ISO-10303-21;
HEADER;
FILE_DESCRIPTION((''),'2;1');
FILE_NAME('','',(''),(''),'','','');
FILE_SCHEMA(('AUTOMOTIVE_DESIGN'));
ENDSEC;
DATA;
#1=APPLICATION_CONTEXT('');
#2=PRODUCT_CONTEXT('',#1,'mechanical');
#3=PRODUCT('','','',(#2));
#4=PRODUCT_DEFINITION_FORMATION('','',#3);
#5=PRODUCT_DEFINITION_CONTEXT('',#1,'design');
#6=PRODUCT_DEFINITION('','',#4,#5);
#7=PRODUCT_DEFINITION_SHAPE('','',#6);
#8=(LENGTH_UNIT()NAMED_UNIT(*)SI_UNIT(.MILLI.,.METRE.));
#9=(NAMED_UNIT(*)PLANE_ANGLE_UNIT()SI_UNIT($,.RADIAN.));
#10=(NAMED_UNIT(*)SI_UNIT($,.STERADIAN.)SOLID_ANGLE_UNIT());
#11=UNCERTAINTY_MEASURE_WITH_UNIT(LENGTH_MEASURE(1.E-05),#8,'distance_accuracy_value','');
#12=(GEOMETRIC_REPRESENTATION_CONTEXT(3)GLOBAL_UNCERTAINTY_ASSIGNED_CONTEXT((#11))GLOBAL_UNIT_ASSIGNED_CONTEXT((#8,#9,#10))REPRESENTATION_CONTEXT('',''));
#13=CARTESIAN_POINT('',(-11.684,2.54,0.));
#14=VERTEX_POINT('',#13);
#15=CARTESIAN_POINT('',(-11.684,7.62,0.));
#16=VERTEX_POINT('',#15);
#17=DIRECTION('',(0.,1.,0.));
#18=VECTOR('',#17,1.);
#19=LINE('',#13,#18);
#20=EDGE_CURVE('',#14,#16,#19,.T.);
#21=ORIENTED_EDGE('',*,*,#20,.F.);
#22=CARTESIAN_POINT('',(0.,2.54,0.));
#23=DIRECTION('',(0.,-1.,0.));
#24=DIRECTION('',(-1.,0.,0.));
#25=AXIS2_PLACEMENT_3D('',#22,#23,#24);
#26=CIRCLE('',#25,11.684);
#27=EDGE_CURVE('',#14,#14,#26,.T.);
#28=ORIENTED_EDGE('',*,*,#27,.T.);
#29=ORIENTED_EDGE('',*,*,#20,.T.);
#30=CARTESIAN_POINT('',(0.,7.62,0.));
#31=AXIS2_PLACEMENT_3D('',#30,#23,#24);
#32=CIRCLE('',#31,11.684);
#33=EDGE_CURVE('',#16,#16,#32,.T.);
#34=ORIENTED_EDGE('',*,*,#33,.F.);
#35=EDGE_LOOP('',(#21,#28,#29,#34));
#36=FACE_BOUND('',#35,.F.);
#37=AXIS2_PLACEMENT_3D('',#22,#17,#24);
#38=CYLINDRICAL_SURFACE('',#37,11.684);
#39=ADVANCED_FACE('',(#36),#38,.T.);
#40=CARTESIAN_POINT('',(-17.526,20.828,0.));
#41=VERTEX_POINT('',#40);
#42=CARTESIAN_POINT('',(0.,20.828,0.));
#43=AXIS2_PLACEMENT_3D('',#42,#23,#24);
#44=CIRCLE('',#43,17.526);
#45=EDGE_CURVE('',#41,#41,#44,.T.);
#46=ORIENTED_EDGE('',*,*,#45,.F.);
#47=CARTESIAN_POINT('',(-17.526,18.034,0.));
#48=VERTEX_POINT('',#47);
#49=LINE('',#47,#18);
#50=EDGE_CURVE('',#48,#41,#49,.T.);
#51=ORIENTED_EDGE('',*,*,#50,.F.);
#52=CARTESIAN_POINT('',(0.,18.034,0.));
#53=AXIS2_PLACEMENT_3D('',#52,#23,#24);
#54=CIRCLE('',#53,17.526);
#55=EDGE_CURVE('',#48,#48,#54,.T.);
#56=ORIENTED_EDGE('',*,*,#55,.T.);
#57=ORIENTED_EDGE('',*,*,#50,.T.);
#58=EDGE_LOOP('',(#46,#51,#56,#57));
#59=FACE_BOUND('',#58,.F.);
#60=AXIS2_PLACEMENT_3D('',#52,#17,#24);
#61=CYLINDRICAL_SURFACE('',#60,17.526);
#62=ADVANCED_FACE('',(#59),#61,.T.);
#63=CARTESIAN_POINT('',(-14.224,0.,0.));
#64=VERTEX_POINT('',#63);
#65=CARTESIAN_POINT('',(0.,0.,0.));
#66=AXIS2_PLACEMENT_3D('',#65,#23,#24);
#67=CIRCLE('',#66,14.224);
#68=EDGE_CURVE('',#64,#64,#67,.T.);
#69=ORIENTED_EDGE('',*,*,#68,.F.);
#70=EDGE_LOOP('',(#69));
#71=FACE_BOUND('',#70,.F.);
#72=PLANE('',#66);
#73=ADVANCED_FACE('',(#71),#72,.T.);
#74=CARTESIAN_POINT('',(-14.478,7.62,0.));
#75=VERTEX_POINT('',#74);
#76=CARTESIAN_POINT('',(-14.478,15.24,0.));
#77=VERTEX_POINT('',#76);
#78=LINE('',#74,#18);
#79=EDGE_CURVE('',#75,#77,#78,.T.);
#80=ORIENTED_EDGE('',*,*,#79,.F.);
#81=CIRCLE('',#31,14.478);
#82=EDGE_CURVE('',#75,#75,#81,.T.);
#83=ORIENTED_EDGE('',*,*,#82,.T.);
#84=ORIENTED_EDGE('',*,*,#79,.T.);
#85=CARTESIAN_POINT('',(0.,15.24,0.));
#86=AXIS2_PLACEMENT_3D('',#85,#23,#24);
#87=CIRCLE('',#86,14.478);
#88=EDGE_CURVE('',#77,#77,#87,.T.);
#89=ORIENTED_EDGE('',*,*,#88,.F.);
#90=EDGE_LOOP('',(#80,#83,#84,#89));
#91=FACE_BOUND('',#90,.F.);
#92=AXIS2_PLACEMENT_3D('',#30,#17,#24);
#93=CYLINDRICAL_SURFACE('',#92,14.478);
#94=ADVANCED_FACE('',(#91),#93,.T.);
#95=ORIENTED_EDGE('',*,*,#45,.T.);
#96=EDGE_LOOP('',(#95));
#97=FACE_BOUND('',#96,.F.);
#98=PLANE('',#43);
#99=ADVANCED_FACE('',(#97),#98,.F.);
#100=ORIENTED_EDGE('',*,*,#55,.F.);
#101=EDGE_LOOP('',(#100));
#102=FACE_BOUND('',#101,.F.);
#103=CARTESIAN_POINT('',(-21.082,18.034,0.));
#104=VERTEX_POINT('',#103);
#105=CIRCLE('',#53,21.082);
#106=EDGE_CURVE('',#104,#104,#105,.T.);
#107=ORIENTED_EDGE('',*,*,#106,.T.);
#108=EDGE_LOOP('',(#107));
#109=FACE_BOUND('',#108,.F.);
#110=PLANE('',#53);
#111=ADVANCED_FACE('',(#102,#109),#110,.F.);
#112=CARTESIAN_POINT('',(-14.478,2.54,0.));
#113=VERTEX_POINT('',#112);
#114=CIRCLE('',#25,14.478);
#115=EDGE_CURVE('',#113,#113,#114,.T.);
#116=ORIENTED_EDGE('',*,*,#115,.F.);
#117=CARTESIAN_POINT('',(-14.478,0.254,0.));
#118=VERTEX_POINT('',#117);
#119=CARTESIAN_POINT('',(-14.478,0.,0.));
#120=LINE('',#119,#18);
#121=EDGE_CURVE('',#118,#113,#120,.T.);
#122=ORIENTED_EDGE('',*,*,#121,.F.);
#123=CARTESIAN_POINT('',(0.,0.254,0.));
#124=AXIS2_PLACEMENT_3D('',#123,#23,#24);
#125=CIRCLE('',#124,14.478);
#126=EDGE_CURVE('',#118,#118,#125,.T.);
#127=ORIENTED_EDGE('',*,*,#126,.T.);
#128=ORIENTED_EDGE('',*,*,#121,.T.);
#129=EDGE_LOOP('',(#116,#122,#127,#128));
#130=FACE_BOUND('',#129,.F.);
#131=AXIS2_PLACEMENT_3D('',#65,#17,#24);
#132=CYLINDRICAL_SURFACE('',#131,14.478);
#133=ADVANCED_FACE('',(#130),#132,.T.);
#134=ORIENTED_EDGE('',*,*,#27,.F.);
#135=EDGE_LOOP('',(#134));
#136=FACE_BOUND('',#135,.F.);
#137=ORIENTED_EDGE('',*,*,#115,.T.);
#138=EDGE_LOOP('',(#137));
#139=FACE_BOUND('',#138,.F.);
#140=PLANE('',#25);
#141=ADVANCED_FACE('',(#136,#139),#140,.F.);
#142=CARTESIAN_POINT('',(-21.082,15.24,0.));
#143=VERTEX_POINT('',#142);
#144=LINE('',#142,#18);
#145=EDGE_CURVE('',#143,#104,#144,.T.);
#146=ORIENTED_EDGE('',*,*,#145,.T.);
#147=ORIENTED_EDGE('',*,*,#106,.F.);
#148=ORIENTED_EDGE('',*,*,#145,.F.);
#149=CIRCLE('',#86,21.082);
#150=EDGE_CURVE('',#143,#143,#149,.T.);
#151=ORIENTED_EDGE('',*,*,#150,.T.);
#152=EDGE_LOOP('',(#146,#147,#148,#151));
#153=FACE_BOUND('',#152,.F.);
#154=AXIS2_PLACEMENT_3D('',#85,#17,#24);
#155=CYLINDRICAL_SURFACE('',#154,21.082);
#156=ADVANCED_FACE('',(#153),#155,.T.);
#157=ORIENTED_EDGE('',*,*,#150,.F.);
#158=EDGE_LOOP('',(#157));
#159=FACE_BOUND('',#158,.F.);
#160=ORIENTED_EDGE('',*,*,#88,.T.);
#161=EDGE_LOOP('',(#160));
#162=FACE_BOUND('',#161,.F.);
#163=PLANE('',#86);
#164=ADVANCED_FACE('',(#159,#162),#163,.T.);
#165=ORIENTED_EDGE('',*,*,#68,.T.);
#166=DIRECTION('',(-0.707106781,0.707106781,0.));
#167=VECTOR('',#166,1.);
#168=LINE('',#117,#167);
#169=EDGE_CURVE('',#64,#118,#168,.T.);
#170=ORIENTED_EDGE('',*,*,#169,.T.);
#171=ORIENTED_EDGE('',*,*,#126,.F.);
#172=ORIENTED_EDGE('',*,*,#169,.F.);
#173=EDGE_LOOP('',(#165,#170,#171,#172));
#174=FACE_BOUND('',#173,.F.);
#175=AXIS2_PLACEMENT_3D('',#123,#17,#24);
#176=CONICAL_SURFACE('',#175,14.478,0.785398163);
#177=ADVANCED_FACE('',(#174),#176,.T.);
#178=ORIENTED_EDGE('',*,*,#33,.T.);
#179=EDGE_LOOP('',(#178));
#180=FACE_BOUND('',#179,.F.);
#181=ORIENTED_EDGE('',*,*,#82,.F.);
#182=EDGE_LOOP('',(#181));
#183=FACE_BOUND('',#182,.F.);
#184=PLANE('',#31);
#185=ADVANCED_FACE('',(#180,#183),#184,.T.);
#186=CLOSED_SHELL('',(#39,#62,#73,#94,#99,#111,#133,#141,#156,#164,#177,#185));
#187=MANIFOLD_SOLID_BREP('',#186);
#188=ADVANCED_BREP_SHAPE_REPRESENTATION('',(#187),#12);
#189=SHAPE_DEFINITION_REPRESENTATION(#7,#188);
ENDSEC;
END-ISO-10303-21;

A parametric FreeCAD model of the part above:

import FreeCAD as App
import Part
import Sketcher
Q = App.Units.Quantity


def edges_at(feature, points):
    """Names of the edges that pass closest to the given points."""
    edges = feature.Shape.Edges
    near = lambda p: min(range(len(edges)), key=lambda i: edges[i].distToShape(Part.Vertex(*p))[0])
    return sorted({f"Edge{near(p) + 1}" for p in points})


def add_polygon(sketch, points):
    """Adds a closed chain of lines whose ends are joined by coincident constraints."""
    first, n = sketch.GeometryCount, len(points)
    for a, b in zip(points, points[1:] + points[:1]):
        sketch.addGeometry(Part.LineSegment(App.Vector(*a, 0), App.Vector(*b, 0)), False)
    for i in range(n):
        sketch.addConstraint(Sketcher.Constraint("Coincident", first + i, 2, first + (i + 1) % n, 1))

doc = App.newDocument("Part")
body = doc.addObject("PartDesign::Body", "Body")

sketch1 = body.newObject("Sketcher::SketchObject", "Sketch")
sketch1.AttachmentSupport = (doc.getObject("XY_Plane"), [""])
sketch1.MapMode = "FlatFace"
add_polygon(sketch1, [(-14.478, 0), (0, 0), (0, 20.828), (-17.526, 20.828), (-17.526, 18.034), (-21.082, 18.034), (-21.082, 15.24), (-14.478, 15.24), (-14.478, 7.62), (-11.684, 7.62), (-11.684, 2.54), (-14.478, 2.54)])
sketch1.addConstraint([
    Sketcher.Constraint("Horizontal", 0),
    Sketcher.Constraint("Vertical", 1),
    Sketcher.Constraint("Horizontal", 2),
    Sketcher.Constraint("Vertical", 3),
    Sketcher.Constraint("Horizontal", 4),
    Sketcher.Constraint("Vertical", 5),
    Sketcher.Constraint("Horizontal", 6),
    Sketcher.Constraint("Vertical", 7),
    Sketcher.Constraint("Horizontal", 8),
    Sketcher.Constraint("Vertical", 9),
    Sketcher.Constraint("Horizontal", 10),
    Sketcher.Constraint("Vertical", 11),
    Sketcher.Constraint("Coincident", 0, 2, -1, 1),
    Sketcher.Constraint("Vertical", 7, 2, 10, 2),
    Sketcher.Constraint("Equal", 10, 3),
    Sketcher.Constraint("Equal", 3, 5),
    Sketcher.Constraint("DistanceX", 0, 1, 0, 2, Q("0.57 in")),
    Sketcher.Constraint("DistanceX", 2, 2, 2, 1, Q("0.69 in")),
    Sketcher.Constraint("DistanceX", 8, 1, 8, 2, Q("0.11 in")),
    Sketcher.Constraint("DistanceY", 1, 1, 1, 2, Q("0.82 in")),
    Sketcher.Constraint("DistanceX", 4, 2, -1, 1, Q("0.83 in")),
    Sketcher.Constraint("DistanceY", 7, 2, 2, 2, Q("0.52 in")),
    Sketcher.Constraint("DistanceY", 9, 2, 9, 1, Q("0.2 in")),
])
revolution = body.newObject("PartDesign::Revolution", "Revolution")
revolution.Profile = sketch1
revolution.ReferenceAxis = (sketch1, ["V_Axis"])
revolution.Angle = 360
doc.recompute()

chamfer = body.newObject("PartDesign::Chamfer", "Chamfer")
chamfer.Base = (revolution, edges_at(revolution, [(14.478, 0, 0)]))
chamfer.Size = Q("0.01 in")

doc.recompute()
